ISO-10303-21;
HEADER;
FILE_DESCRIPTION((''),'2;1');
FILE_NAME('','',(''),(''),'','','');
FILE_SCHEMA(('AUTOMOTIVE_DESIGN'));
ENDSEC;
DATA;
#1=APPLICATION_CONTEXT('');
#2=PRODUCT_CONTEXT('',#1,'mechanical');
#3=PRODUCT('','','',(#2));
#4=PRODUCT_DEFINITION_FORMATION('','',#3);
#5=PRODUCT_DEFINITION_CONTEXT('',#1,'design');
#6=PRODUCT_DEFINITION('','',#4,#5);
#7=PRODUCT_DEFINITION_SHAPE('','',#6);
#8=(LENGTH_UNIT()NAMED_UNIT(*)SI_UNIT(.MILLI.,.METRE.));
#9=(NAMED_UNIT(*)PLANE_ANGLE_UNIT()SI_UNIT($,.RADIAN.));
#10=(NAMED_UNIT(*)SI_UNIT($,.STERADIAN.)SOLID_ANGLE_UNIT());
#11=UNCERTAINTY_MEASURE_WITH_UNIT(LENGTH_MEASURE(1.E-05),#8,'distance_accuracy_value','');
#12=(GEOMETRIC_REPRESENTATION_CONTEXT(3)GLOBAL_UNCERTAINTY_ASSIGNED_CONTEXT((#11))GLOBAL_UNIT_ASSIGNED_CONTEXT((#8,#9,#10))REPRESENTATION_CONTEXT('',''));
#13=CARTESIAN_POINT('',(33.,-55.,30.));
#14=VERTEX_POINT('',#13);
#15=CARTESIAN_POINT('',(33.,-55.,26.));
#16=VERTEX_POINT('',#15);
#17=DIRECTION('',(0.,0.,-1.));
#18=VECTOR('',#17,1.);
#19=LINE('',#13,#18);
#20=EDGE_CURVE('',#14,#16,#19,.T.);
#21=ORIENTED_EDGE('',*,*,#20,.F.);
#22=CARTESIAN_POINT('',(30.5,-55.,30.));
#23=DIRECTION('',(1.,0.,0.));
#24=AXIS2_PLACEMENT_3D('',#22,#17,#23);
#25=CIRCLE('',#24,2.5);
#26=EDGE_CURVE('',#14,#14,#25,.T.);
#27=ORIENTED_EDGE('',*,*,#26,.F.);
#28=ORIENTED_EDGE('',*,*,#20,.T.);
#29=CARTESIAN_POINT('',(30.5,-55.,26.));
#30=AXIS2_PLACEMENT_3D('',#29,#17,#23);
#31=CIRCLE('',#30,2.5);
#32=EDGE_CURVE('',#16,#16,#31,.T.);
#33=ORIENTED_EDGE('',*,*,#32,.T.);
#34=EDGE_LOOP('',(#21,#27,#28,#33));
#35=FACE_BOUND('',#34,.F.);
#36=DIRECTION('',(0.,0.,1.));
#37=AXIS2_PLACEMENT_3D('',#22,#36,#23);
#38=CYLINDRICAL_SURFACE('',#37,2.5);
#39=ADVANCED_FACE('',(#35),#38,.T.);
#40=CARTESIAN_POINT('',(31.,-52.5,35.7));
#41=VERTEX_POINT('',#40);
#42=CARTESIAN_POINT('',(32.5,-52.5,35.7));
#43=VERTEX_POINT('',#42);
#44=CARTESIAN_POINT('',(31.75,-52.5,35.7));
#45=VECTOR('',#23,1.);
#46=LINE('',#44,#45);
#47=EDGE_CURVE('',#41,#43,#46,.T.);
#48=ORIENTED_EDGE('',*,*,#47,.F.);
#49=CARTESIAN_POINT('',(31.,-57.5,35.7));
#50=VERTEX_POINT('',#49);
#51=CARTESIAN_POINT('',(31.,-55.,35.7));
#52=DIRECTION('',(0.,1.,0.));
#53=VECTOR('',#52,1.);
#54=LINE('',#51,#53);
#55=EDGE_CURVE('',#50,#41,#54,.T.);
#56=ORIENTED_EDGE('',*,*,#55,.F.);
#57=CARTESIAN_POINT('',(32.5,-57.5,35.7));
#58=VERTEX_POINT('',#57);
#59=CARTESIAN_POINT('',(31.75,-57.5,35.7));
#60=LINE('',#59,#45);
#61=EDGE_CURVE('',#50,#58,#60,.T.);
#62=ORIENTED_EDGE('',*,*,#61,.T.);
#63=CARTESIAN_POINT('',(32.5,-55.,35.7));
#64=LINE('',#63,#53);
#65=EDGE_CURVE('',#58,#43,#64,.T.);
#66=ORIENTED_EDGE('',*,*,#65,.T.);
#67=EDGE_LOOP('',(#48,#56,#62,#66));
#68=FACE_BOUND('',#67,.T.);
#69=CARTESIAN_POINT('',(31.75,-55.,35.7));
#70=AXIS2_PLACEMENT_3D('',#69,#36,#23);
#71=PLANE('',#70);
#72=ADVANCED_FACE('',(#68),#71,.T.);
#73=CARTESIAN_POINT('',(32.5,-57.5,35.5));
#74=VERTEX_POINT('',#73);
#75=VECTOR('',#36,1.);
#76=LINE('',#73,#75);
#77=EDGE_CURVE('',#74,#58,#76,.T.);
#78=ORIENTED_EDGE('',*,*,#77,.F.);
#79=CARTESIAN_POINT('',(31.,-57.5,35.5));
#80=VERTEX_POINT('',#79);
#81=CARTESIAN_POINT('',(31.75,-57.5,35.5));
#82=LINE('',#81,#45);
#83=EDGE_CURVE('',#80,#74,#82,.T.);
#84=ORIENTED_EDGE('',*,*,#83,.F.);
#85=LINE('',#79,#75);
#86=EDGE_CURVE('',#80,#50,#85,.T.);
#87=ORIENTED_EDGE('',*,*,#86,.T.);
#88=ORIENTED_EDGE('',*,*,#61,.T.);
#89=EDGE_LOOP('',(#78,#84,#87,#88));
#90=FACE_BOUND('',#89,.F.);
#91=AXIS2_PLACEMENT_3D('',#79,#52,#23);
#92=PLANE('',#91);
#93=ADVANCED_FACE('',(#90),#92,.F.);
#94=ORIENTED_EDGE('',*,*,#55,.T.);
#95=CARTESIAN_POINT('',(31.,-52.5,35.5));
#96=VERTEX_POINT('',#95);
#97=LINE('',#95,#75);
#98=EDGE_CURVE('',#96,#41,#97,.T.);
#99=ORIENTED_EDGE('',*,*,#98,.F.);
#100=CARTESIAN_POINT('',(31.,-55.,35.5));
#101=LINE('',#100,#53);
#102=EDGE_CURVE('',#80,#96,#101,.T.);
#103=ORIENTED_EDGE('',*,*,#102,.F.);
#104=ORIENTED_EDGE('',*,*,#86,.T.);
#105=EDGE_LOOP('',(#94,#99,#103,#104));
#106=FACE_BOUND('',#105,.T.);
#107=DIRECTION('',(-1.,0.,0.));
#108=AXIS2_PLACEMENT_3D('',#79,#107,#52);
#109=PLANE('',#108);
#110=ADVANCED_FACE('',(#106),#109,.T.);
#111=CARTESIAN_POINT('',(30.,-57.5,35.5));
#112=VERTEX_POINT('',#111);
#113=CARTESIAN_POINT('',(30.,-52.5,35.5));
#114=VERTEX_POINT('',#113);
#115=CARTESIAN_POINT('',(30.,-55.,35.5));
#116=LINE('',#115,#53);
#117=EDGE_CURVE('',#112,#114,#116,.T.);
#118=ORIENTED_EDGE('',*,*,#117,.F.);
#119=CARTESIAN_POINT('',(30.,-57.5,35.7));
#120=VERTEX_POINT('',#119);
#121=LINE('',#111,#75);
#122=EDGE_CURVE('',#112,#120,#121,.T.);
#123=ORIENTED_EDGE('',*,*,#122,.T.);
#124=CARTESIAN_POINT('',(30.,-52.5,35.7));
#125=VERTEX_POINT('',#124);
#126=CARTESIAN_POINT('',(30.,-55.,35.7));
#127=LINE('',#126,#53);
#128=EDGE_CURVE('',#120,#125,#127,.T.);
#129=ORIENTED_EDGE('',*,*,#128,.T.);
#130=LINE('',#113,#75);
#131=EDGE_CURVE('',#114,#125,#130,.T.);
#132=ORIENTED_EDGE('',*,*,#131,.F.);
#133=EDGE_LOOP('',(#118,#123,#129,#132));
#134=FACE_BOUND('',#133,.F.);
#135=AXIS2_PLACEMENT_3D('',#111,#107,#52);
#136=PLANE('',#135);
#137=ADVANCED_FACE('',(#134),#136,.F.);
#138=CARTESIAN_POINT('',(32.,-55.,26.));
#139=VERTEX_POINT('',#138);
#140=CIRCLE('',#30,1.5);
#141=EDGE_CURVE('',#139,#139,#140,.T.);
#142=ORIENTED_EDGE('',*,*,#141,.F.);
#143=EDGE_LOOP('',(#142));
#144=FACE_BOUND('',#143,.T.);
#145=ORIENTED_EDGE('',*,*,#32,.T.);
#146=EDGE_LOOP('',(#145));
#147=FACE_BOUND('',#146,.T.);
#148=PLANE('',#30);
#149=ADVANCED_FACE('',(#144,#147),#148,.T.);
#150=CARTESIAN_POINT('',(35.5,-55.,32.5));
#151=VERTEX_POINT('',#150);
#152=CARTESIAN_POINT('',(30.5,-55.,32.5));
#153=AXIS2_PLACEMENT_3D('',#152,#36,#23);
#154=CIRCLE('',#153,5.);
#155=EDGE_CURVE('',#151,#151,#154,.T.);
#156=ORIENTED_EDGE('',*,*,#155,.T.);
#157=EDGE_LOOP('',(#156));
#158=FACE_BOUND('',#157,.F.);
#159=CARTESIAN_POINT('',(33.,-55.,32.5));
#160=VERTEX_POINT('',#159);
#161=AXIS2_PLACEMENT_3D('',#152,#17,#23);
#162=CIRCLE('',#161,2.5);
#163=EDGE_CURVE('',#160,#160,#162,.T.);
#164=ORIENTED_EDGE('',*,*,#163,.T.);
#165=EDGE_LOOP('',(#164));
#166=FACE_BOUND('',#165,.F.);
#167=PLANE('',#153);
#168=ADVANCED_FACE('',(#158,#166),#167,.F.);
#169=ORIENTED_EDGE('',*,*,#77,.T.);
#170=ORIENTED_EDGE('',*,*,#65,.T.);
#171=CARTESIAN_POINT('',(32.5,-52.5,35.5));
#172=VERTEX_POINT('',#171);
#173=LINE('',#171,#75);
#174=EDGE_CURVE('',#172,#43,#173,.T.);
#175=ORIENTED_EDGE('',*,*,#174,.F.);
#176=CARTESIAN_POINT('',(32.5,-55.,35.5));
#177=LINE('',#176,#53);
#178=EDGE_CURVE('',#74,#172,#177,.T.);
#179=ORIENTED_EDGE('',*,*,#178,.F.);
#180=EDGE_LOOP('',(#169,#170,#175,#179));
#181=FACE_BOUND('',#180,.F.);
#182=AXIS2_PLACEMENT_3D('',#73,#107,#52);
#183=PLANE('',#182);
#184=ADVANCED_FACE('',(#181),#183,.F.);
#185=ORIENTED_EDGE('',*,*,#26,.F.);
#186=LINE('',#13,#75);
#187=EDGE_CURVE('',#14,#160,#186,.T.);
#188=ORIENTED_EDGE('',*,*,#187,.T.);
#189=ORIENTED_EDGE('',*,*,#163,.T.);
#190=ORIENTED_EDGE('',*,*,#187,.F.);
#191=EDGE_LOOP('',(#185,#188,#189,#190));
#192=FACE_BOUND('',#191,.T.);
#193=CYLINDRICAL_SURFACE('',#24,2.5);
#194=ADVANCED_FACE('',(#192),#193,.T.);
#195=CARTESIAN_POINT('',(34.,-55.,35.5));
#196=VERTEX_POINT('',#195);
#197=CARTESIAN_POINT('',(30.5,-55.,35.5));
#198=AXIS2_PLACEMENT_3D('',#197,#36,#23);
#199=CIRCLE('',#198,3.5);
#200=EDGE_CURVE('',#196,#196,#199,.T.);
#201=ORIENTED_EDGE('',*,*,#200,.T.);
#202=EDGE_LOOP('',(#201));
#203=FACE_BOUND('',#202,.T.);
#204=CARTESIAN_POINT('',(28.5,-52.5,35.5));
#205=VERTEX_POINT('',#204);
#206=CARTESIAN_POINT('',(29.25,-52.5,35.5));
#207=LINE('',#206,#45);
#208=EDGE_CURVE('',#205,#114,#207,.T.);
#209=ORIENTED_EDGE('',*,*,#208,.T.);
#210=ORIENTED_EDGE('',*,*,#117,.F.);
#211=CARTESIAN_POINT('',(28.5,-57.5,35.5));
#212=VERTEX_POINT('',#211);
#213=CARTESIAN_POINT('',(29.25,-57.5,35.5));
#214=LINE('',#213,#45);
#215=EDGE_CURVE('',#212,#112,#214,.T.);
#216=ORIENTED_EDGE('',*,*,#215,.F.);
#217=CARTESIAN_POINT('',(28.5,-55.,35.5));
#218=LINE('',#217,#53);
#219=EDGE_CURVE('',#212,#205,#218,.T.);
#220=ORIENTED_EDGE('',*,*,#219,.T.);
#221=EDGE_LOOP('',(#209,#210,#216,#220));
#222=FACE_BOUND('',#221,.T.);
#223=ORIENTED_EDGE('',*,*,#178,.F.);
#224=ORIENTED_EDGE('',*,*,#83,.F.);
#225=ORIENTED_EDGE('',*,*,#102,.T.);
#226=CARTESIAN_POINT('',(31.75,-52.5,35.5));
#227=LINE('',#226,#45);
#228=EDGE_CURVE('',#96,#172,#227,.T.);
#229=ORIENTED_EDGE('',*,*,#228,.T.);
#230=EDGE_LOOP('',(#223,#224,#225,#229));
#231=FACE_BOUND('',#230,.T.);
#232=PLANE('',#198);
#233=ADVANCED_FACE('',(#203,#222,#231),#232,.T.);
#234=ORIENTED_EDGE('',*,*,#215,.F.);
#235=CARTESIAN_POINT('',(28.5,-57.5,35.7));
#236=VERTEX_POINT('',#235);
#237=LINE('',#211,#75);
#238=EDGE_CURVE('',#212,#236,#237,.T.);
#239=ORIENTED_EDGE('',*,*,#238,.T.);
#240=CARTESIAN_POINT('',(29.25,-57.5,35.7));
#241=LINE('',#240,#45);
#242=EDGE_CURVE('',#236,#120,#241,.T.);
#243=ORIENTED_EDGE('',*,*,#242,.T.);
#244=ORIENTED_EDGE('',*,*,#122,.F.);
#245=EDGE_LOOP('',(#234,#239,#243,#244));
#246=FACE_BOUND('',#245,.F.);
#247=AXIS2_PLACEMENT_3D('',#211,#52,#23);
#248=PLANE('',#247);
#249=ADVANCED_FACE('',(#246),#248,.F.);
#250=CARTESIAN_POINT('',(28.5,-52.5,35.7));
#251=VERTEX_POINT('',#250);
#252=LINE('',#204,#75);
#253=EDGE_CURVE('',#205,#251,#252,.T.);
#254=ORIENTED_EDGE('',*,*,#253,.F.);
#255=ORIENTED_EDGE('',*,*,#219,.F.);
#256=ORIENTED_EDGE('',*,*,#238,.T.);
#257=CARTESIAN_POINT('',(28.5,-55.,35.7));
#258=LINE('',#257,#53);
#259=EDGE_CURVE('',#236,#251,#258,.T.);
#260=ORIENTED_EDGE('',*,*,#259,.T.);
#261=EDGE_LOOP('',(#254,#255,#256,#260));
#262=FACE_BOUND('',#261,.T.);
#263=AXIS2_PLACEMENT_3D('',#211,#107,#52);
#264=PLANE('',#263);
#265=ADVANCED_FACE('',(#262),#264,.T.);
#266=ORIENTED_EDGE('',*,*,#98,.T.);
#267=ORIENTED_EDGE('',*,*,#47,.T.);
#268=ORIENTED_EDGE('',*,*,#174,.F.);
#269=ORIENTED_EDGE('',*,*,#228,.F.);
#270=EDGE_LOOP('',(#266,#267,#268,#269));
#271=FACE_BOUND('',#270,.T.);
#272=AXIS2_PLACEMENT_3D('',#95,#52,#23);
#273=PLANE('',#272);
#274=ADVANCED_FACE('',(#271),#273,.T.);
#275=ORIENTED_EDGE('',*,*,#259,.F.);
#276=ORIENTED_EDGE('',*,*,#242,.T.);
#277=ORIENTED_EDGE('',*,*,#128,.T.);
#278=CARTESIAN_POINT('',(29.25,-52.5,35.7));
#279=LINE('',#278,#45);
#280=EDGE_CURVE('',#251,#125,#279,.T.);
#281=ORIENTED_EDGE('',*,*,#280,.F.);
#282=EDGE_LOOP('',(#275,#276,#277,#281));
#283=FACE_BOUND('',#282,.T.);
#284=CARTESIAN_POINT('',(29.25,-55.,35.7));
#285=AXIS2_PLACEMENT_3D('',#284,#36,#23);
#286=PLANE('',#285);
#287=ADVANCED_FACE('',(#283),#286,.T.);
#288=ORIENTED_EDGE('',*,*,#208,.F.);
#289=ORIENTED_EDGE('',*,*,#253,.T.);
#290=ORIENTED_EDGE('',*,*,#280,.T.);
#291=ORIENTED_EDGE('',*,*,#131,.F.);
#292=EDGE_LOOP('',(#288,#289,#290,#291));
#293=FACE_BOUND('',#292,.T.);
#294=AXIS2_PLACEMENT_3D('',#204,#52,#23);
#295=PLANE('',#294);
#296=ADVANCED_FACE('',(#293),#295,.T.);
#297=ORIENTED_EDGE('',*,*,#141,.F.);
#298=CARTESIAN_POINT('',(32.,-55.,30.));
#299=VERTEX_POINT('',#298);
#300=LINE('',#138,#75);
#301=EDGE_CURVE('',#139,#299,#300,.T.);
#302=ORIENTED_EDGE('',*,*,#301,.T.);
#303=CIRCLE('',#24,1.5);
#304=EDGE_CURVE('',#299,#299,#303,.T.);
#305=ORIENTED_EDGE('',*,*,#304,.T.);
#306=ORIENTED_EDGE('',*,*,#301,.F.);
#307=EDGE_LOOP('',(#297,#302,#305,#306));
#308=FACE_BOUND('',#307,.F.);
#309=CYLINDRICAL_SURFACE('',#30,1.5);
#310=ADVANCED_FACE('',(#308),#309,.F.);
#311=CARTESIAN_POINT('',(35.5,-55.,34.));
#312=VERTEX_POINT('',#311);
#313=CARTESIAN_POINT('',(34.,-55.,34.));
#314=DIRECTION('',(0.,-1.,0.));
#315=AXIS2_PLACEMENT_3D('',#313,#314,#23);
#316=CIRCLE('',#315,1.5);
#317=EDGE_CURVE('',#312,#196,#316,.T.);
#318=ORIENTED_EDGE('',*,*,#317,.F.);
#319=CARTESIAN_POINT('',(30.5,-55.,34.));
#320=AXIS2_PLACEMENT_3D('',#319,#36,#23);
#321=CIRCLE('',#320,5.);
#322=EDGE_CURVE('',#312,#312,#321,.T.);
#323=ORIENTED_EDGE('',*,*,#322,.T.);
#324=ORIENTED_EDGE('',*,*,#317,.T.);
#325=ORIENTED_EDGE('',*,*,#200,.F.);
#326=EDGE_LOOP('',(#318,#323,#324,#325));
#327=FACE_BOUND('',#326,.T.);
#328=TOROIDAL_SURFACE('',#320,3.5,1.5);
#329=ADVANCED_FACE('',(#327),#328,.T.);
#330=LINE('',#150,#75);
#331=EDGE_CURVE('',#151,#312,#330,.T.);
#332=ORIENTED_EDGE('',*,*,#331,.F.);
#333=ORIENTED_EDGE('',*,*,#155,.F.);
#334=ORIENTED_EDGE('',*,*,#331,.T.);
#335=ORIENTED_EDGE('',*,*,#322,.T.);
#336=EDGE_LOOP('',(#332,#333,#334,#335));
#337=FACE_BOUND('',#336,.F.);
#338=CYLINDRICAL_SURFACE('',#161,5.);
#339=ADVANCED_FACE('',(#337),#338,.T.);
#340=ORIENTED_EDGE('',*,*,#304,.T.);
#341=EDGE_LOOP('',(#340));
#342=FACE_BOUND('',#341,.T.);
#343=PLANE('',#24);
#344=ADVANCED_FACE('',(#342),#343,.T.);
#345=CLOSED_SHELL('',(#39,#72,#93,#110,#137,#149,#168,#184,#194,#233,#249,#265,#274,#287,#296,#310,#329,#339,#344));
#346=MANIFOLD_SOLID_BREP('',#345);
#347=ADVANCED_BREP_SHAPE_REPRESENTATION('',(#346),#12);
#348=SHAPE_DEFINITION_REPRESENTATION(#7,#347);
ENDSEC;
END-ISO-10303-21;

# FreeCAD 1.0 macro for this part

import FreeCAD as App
import Part
import Sketcher
Q = App.Units.Quantity


def edges_at(feature, points):
    """Names of the edges that pass closest to the given points."""
    edges = feature.Shape.Edges
    near = lambda p: min(range(len(edges)), key=lambda i: edges[i].distToShape(Part.Vertex(*p))[0])
    return sorted({f"Edge{near(p) + 1}" for p in points})


def add_polygon(sketch, points):
    """Adds a closed chain of lines whose ends are joined by coincident constraints."""
    first, n = sketch.GeometryCount, len(points)
    for a, b in zip(points, points[1:] + points[:1]):
        sketch.addGeometry(Part.LineSegment(App.Vector(*a, 0), App.Vector(*b, 0)), False)
    for i in range(n):
        sketch.addConstraint(Sketcher.Constraint("Coincident", first + i, 2, first + (i + 1) % n, 1))

doc = App.newDocument("Part")
params = doc.addObject("Spreadsheet::Sheet", "Params")
for row, (alias, value) in enumerate([
    ("sketch1_diameter", "5 mm"),
    ("pad1_length", "2.5 mm"),
    ("sketch2_diameter", "10 mm"),
    ("pad2_length", "3 mm"),
    ("fillet_radius", "1.5 mm"),
    ("sketch3_diameter", "5 mm"),
    ("pad3_length", "4 mm"),
    ("sketch4_diameter", "3 mm"),
    ("pocket1_length", "4 mm"),
    ("sketch5_height", "5 mm"),
    ("sketch5_width", "1.5 mm"),
    ("pad4_length", "0.2 mm"),
], start=1):
    params.set(f"A{row}", alias)
    params.set(f"B{row}", "=" + value)
    params.setAlias(f"B{row}", alias)

body = doc.addObject("PartDesign::Body", "Body")

# Sketch on XY plane
sketch1 = doc.addObject("Sketcher::SketchObject", "Sketch")
body.addObject(sketch1)
sketch1.AttachmentSupport = (doc.XY_Plane, [""])
sketch1.MapMode = "FlatFace"
sketch1.AttachmentOffset = App.Placement(App.Vector(0, 0, 30), App.Rotation())
sketch1.addGeometry(Part.Circle(App.Vector(101, -55, 0), App.Vector(0, 0, 1), 2.5), False)
sketch1.addConstraint(Sketcher.Constraint("Diameter", 0, Q("5 mm")))
sketch1.addConstraint(Sketcher.Constraint("DistanceX", -1, 1, 0, 3, Q("101 mm")))
sketch1.addConstraint(Sketcher.Constraint("DistanceY", 0, 3, -1, 1, Q("55 mm")))
sketch1.setExpression("Constraints[0]", "Params.sketch1_diameter")
pad1 = doc.addObject("PartDesign::Pad", "Pad")
body.addObject(pad1)
pad1.Profile = sketch1
pad1.setExpression("Length", "Params.pad1_length")

# Sketch on XY plane
sketch2 = doc.addObject("Sketcher::SketchObject", "Sketch001")
body.addObject(sketch2)
sketch2.AttachmentSupport = (doc.XY_Plane, [""])
sketch2.MapMode = "FlatFace"
sketch2.AttachmentOffset = App.Placement(App.Vector(0, 0, 32.5), App.Rotation())
sketch2.addGeometry(Part.Circle(App.Vector(101, -55, 0), App.Vector(0, 0, 1), 5), False)
sketch2.addConstraint(Sketcher.Constraint("Diameter", 0, Q("10 mm")))
sketch2.addConstraint(Sketcher.Constraint("DistanceX", -1, 1, 0, 3, Q("101 mm")))
sketch2.addConstraint(Sketcher.Constraint("DistanceY", 0, 3, -1, 1, Q("55 mm")))
sketch2.setExpression("Constraints[0]", "Params.sketch2_diameter")
pad2 = doc.addObject("PartDesign::Pad", "Pad001")
body.addObject(pad2)
pad2.Profile = sketch2
pad2.setExpression("Length", "Params.pad2_length")
doc.recompute()

fillet = doc.addObject("PartDesign::Fillet", "Fillet")
body.addObject(fillet)
fillet.Base = (pad2, edges_at(pad2, [(96, -55, 35.5)]))
fillet.setExpression("Radius", "Params.fillet_radius")

# Sketch on XY plane
sketch3 = doc.addObject("Sketcher::SketchObject", "Sketch002")
body.addObject(sketch3)
sketch3.AttachmentSupport = (doc.XY_Plane, [""])
sketch3.MapMode = "FlatFace"
sketch3.AttachmentOffset = App.Placement(App.Vector(0, 0, 30), App.Rotation())
sketch3.addGeometry(Part.Circle(App.Vector(101, -55, 0), App.Vector(0, 0, 1), 2.5), False)
sketch3.addConstraint(Sketcher.Constraint("Diameter", 0, Q("5 mm")))
sketch3.addConstraint(Sketcher.Constraint("DistanceX", -1, 1, 0, 3, Q("101 mm")))
sketch3.addConstraint(Sketcher.Constraint("DistanceY", 0, 3, -1, 1, Q("55 mm")))
sketch3.setExpression("Constraints[0]", "Params.sketch3_diameter")
pad3 = doc.addObject("PartDesign::Pad", "Pad002")
body.addObject(pad3)
pad3.Profile = sketch3
pad3.setExpression("Length", "Params.pad3_length")
pad3.Reversed = True

# Sketch on XY plane
sketch4 = doc.addObject("Sketcher::SketchObject", "Sketch003")
body.addObject(sketch4)
sketch4.AttachmentSupport = (doc.XY_Plane, [""])
sketch4.MapMode = "FlatFace"
sketch4.AttachmentOffset = App.Placement(App.Vector(0, 0, 26), App.Rotation())
sketch4.addGeometry(Part.Circle(App.Vector(101, -55, 0), App.Vector(0, 0, 1), 1.5), False)
sketch4.addConstraint(Sketcher.Constraint("Diameter", 0, Q("3 mm")))
sketch4.addConstraint(Sketcher.Constraint("DistanceX", -1, 1, 0, 3, Q("101 mm")))
sketch4.addConstraint(Sketcher.Constraint("DistanceY", 0, 3, -1, 1, Q("55 mm")))
sketch4.setExpression("Constraints[0]", "Params.sketch4_diameter")
pocket1 = doc.addObject("PartDesign::Pocket", "Pocket")
body.addObject(pocket1)
pocket1.Profile = sketch4
pocket1.setExpression("Length", "Params.pocket1_length")
pocket1.Reversed = True
body2 = doc.addObject("PartDesign::Body", "Body001")
doc.recompute()

body.Placement = App.Placement(App.Vector(75, 0, 0), App.Rotation(App.Vector(0, 0, 1), 0))
boolean = doc.addObject("PartDesign::Boolean", "Boolean")
body2.addObject(boolean)
boolean.Type = "Fuse"
boolean.addObjects([body])

# Sketch on XY plane
sketch5 = doc.addObject("Sketcher::SketchObject", "Sketch004")
body2.addObject(sketch5)
sketch5.AttachmentSupport = (doc.getObject("XY_Plane001"), [""])
sketch5.MapMode = "FlatFace"
sketch5.AttachmentOffset = App.Placement(App.Vector(0, 0, 35.5), App.Rotation())
add_polygon(sketch5, [(174, -52.5), (174, -57.5), (175.5, -57.5), (175.5, -52.5)])  # lines 0-3
add_polygon(sketch5, [(176.5, -52.5), (176.5, -57.5), (178, -57.5), (178, -52.5)])  # lines 4-7
sketch5.addConstraint(Sketcher.Constraint("Vertical", 0))
sketch5.addConstraint(Sketcher.Constraint("Horizontal", 1))
sketch5.addConstraint(Sketcher.Constraint("Vertical", 2))
sketch5.addConstraint(Sketcher.Constraint("Horizontal", 3))
sketch5.addConstraint(Sketcher.Constraint("Vertical", 4))
sketch5.addConstraint(Sketcher.Constraint("Horizontal", 5))
sketch5.addConstraint(Sketcher.Constraint("Vertical", 6))
sketch5.addConstraint(Sketcher.Constraint("Horizontal", 7))
sketch5.addConstraint(Sketcher.Constraint("Horizontal", 1, 2, 4, 2))
sketch5.addConstraint(Sketcher.Constraint("Horizontal", 3, 2, 6, 2))
sketch5.addConstraint(Sketcher.Constraint("Equal", 3, 5))
sketch5.addConstraint(Sketcher.Constraint("DistanceY", 0, 2, 0, 1, Q("5 mm")))
sketch5.addConstraint(Sketcher.Constraint("DistanceX", 1, 1, 1, 2, Q("1.5 mm")))
sketch5.addConstraint(Sketcher.Constraint("DistanceX", -1, 1, 0, 2, Q("174 mm")))
sketch5.addConstraint(Sketcher.Constraint("DistanceX", -1, 1, 5, 2, Q("178 mm")))
sketch5.addConstraint(Sketcher.Constraint("DistanceY", 0, 2, -1, 1, Q("57.5 mm")))
sketch5.setExpression("Constraints[19]", "Params.sketch5_height")
sketch5.setExpression("Constraints[20]", "Params.sketch5_width")
pad4 = doc.addObject("PartDesign::Pad", "Pad003")
body2.addObject(pad4)
pad4.Profile = sketch5
pad4.setExpression("Length", "Params.pad4_length")
body3 = doc.addObject("PartDesign::Body", "Body002")
doc.recompute()

body2.Placement = App.Placement(App.Vector(-145.5, 0, 0), App.Rotation(App.Vector(0, 0, 1), 0))
boolean2 = doc.addObject("PartDesign::Boolean", "Boolean001")
body3.addObject(boolean2)
boolean2.Type = "Fuse"
boolean2.addObjects([body2])

doc.recompute()
